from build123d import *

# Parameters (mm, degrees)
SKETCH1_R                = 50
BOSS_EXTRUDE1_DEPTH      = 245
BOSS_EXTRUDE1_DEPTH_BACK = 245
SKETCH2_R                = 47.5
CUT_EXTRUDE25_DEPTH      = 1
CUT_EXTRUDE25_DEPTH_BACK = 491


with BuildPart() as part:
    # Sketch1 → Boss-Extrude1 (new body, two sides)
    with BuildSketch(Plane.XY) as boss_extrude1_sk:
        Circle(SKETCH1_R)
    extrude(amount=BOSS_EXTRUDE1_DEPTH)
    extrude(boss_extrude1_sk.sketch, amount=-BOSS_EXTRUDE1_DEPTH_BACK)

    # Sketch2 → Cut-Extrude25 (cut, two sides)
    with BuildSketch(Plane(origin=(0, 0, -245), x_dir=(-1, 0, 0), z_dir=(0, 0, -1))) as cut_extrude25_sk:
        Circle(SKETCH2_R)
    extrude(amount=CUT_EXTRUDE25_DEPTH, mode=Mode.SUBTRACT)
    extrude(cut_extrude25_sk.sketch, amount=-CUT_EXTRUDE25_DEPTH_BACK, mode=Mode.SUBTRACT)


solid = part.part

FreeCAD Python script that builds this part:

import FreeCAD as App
import Part
import Sketcher

V = App.Vector
Q = App.Units.Quantity

doc = App.newDocument("Part")
body = doc.addObject("PartDesign::Body", "Body")

# Sketch on XY plane
sketch1 = body.newObject("Sketcher::SketchObject", "Sketch")
sketch1.AttachmentSupport = (doc.getObject("XY_Plane"), [""])
sketch1.MapMode = "FlatFace"
sketch1.addGeometry(Part.Circle(V(0, 0, 0), V(0, 0, 1), 50), False)
sketch1.addConstraint(Sketcher.Constraint("Coincident", 0, 3, -1, 1))
sketch1.addConstraint(Sketcher.Constraint("Diameter", 0, Q("100 mm")))
pad1 = body.newObject("PartDesign::Pad", "Pad")
pad1.Profile = sketch1
pad1.Type = "TwoLengths"
pad1.Length = 245
pad1.Length2 = 245

# Sketch on XY plane
sketch2 = body.newObject("Sketcher::SketchObject", "Sketch001")
sketch2.AttachmentSupport = (doc.getObject("XY_Plane"), [""])
sketch2.MapMode = "FlatFace"
sketch2.AttachmentOffset = App.Placement(V(0, 0, -245), App.Rotation())
sketch2.addGeometry(Part.Circle(V(0, 0, 0), V(0, 0, 1), 48), False)
sketch2.addConstraint(Sketcher.Constraint("Coincident", 0, 3, -1, 1))
sketch2.addConstraint(Sketcher.Constraint("Diameter", 0, Q("95 mm")))
pocket1 = body.newObject("PartDesign::Pocket", "Pocket")
pocket1.Profile = sketch2
pocket1.Type = "ThroughAll"
pocket1.Midplane = True

doc.recompute()
